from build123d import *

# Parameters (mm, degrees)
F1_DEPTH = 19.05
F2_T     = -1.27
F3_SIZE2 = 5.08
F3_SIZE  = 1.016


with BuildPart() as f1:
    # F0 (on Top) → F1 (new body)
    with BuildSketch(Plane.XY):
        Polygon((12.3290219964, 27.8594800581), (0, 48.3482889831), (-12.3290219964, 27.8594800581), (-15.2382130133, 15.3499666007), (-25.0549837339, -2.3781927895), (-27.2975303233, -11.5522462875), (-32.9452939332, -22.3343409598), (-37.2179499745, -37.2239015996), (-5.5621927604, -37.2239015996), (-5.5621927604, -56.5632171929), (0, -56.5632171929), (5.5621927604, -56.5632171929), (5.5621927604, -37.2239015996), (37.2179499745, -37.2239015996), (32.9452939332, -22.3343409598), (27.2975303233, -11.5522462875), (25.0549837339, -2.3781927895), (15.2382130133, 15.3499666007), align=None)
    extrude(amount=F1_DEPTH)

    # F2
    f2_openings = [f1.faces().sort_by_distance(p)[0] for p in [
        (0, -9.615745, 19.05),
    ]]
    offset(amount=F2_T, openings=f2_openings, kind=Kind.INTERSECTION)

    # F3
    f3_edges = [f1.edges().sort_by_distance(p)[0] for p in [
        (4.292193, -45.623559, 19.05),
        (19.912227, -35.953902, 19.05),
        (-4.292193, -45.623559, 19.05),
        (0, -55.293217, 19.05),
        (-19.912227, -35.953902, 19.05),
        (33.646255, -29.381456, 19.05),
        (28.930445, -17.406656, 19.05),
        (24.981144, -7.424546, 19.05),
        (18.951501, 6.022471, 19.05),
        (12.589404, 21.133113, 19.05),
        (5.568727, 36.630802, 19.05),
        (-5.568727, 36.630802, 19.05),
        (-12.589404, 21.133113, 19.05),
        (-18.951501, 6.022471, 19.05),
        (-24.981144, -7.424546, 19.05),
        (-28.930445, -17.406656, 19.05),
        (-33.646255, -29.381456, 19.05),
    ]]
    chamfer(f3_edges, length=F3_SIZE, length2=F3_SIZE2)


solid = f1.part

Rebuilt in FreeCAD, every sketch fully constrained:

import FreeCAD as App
import Part
import Sketcher
Q = App.Units.Quantity


def edges_at(feature, points):
    """Names of the edges that pass closest to the given points."""
    edges = feature.Shape.Edges
    near = lambda p: min(range(len(edges)), key=lambda i: edges[i].distToShape(Part.Vertex(*p))[0])
    return sorted({f"Edge{near(p) + 1}" for p in points})


def faces_at(feature, points):
    """Names of the faces that lie closest to the given points."""
    faces = feature.Shape.Faces
    near = lambda p: min(range(len(faces)), key=lambda i: faces[i].distToShape(Part.Vertex(*p))[0])
    return sorted({f"Face{near(p) + 1}" for p in points})


def add_polygon(sketch, points):
    """Adds a closed chain of lines whose ends are joined by coincident constraints."""
    first, n = sketch.GeometryCount, len(points)
    for a, b in zip(points, points[1:] + points[:1]):
        sketch.addGeometry(Part.LineSegment(App.Vector(*a, 0), App.Vector(*b, 0)), False)
    for i in range(n):
        sketch.addConstraint(Sketcher.Constraint("Coincident", first + i, 2, first + (i + 1) % n, 1))

doc = App.newDocument("Part")
body = doc.addObject("PartDesign::Body", "Body")

sketch1 = body.newObject("Sketcher::SketchObject", "Sketch")
sketch1.AttachmentSupport = (doc.getObject("XY_Plane"), [""])
sketch1.MapMode = "FlatFace"
add_polygon(sketch1, [(12.329022, 27.85948), (0, 48.348289), (-12.329022, 27.85948), (-15.238213, 15.349967), (-25.054984, -2.378193), (-27.29753, -11.552246), (-32.945294, -22.334341), (-37.21795, -37.223902), (-5.562193, -37.223902), (-5.562193, -56.563217), (5.562193, -56.563217), (5.562193, -37.223902), (37.21795, -37.223902), (32.945294, -22.334341), (27.29753, -11.552246), (25.054984, -2.378193), (15.238213, 15.349967)])
sketch1.addConstraint(Sketcher.Constraint("Horizontal", 7))
sketch1.addConstraint(Sketcher.Constraint("Vertical", 8))
sketch1.addConstraint(Sketcher.Constraint("Horizontal", 9))
sketch1.addConstraint(Sketcher.Constraint("Vertical", 10))
sketch1.addConstraint(Sketcher.Constraint("Horizontal", 11))
sketch1.addConstraint(Sketcher.Constraint("Symmetric", 7, 2, 10, 2, -2))
sketch1.addConstraint(Sketcher.Constraint("Symmetric", 5, 2, 12, 2, -2))
sketch1.addConstraint(Sketcher.Constraint("Symmetric", 4, 2, 13, 2, -2))
sketch1.addConstraint(Sketcher.Constraint("Symmetric", 3, 2, 14, 2, -2))
sketch1.addConstraint(Sketcher.Constraint("Symmetric", 2, 2, 15, 2, -2))
sketch1.addConstraint(Sketcher.Constraint("Symmetric", 1, 2, 16, 2, -2))
sketch1.addConstraint(Sketcher.Constraint("PointOnObject", 0, 2, -2))
sketch1.addConstraint(Sketcher.Constraint("Equal", 7, 11))
sketch1.addConstraint(Sketcher.Constraint("DistanceY", 6, 2, -1, 1, 37.223902))
sketch1.addConstraint(Sketcher.Constraint("DistanceX", 5, 2, 7, 2, 27.383101))
sketch1.addConstraint(Sketcher.Constraint("Distance", 5, 12.171721))
sketch1.addConstraint(Sketcher.Constraint("Distance", 6, 15.490468))
sketch1.addConstraint(Sketcher.Constraint("DistanceX", 7, 1, 7, 2, 31.655757))
sketch1.addConstraint(Sketcher.Constraint("DistanceX", 9, 1, 9, 2, 11.124386))
sketch1.addConstraint(Sketcher.Constraint("DistanceY", 8, 2, 8, 1, 19.339316))
sketch1.addConstraint(Sketcher.Constraint("DistanceY", -1, 1, 0, 2, 48.348289))
sketch1.addConstraint(Sketcher.Constraint("DistanceX", 1, 2, -1, 1, 12.329022))
sketch1.addConstraint(Sketcher.Constraint("DistanceY", -1, 1, 1, 2, 27.85948))
sketch1.addConstraint(Sketcher.Constraint("DistanceX", 4, 2, -1, 1, 27.29753))
sketch1.addConstraint(Sketcher.Constraint("DistanceX", 2, 2, 1, 2, 2.909191))
sketch1.addConstraint(Sketcher.Constraint("DistanceX", 3, 2, 2, 2, 9.816771))
sketch1.addConstraint(Sketcher.Constraint("DistanceY", 3, 2, 2, 2, 17.728159))
sketch1.addConstraint(Sketcher.Constraint("DistanceY", 3, 2, 0, 2, 50.726482))
pad1 = body.newObject("PartDesign::Pad", "Pad")
pad1.Profile = sketch1
pad1.Length = Q("0.75 in")
doc.recompute()

thickness = body.newObject("PartDesign::Thickness", "Thickness")
thickness.Base = (pad1, faces_at(pad1, [(0, -4.107, 19.05)]))
thickness.Value = Q("0.05 in")
thickness.Reversed = True
thickness.Join = "Intersection"
doc.recompute()

chamfer = body.newObject("PartDesign::Chamfer", "Chamfer")
chamfer.Base = (thickness, edges_at(thickness, [
    (4.292, -45.624, 19.05),
    (19.912, -35.954, 19.05),
    (-4.292, -45.624, 19.05),
    (0, -55.293, 19.05),
    (-19.912, -35.954, 19.05),
    (33.646, -29.381, 19.05),
    (28.93, -17.407, 19.05),
    (24.981, -7.425, 19.05),
    (18.952, 6.022, 19.05),
    (12.589, 21.133, 19.05),
    (5.569, 36.631, 19.05),
    (-5.569, 36.631, 19.05),
    (-12.589, 21.133, 19.05),
    (-18.952, 6.022, 19.05),
    (-24.981, -7.425, 19.05),
    (-28.93, -17.407, 19.05),
    (-33.646, -29.381, 19.05),
]))
chamfer.ChamferType = "Two distances"
chamfer.Size = Q("0.04 in")
chamfer.Size2 = Q("0.2 in")

doc.recompute()
